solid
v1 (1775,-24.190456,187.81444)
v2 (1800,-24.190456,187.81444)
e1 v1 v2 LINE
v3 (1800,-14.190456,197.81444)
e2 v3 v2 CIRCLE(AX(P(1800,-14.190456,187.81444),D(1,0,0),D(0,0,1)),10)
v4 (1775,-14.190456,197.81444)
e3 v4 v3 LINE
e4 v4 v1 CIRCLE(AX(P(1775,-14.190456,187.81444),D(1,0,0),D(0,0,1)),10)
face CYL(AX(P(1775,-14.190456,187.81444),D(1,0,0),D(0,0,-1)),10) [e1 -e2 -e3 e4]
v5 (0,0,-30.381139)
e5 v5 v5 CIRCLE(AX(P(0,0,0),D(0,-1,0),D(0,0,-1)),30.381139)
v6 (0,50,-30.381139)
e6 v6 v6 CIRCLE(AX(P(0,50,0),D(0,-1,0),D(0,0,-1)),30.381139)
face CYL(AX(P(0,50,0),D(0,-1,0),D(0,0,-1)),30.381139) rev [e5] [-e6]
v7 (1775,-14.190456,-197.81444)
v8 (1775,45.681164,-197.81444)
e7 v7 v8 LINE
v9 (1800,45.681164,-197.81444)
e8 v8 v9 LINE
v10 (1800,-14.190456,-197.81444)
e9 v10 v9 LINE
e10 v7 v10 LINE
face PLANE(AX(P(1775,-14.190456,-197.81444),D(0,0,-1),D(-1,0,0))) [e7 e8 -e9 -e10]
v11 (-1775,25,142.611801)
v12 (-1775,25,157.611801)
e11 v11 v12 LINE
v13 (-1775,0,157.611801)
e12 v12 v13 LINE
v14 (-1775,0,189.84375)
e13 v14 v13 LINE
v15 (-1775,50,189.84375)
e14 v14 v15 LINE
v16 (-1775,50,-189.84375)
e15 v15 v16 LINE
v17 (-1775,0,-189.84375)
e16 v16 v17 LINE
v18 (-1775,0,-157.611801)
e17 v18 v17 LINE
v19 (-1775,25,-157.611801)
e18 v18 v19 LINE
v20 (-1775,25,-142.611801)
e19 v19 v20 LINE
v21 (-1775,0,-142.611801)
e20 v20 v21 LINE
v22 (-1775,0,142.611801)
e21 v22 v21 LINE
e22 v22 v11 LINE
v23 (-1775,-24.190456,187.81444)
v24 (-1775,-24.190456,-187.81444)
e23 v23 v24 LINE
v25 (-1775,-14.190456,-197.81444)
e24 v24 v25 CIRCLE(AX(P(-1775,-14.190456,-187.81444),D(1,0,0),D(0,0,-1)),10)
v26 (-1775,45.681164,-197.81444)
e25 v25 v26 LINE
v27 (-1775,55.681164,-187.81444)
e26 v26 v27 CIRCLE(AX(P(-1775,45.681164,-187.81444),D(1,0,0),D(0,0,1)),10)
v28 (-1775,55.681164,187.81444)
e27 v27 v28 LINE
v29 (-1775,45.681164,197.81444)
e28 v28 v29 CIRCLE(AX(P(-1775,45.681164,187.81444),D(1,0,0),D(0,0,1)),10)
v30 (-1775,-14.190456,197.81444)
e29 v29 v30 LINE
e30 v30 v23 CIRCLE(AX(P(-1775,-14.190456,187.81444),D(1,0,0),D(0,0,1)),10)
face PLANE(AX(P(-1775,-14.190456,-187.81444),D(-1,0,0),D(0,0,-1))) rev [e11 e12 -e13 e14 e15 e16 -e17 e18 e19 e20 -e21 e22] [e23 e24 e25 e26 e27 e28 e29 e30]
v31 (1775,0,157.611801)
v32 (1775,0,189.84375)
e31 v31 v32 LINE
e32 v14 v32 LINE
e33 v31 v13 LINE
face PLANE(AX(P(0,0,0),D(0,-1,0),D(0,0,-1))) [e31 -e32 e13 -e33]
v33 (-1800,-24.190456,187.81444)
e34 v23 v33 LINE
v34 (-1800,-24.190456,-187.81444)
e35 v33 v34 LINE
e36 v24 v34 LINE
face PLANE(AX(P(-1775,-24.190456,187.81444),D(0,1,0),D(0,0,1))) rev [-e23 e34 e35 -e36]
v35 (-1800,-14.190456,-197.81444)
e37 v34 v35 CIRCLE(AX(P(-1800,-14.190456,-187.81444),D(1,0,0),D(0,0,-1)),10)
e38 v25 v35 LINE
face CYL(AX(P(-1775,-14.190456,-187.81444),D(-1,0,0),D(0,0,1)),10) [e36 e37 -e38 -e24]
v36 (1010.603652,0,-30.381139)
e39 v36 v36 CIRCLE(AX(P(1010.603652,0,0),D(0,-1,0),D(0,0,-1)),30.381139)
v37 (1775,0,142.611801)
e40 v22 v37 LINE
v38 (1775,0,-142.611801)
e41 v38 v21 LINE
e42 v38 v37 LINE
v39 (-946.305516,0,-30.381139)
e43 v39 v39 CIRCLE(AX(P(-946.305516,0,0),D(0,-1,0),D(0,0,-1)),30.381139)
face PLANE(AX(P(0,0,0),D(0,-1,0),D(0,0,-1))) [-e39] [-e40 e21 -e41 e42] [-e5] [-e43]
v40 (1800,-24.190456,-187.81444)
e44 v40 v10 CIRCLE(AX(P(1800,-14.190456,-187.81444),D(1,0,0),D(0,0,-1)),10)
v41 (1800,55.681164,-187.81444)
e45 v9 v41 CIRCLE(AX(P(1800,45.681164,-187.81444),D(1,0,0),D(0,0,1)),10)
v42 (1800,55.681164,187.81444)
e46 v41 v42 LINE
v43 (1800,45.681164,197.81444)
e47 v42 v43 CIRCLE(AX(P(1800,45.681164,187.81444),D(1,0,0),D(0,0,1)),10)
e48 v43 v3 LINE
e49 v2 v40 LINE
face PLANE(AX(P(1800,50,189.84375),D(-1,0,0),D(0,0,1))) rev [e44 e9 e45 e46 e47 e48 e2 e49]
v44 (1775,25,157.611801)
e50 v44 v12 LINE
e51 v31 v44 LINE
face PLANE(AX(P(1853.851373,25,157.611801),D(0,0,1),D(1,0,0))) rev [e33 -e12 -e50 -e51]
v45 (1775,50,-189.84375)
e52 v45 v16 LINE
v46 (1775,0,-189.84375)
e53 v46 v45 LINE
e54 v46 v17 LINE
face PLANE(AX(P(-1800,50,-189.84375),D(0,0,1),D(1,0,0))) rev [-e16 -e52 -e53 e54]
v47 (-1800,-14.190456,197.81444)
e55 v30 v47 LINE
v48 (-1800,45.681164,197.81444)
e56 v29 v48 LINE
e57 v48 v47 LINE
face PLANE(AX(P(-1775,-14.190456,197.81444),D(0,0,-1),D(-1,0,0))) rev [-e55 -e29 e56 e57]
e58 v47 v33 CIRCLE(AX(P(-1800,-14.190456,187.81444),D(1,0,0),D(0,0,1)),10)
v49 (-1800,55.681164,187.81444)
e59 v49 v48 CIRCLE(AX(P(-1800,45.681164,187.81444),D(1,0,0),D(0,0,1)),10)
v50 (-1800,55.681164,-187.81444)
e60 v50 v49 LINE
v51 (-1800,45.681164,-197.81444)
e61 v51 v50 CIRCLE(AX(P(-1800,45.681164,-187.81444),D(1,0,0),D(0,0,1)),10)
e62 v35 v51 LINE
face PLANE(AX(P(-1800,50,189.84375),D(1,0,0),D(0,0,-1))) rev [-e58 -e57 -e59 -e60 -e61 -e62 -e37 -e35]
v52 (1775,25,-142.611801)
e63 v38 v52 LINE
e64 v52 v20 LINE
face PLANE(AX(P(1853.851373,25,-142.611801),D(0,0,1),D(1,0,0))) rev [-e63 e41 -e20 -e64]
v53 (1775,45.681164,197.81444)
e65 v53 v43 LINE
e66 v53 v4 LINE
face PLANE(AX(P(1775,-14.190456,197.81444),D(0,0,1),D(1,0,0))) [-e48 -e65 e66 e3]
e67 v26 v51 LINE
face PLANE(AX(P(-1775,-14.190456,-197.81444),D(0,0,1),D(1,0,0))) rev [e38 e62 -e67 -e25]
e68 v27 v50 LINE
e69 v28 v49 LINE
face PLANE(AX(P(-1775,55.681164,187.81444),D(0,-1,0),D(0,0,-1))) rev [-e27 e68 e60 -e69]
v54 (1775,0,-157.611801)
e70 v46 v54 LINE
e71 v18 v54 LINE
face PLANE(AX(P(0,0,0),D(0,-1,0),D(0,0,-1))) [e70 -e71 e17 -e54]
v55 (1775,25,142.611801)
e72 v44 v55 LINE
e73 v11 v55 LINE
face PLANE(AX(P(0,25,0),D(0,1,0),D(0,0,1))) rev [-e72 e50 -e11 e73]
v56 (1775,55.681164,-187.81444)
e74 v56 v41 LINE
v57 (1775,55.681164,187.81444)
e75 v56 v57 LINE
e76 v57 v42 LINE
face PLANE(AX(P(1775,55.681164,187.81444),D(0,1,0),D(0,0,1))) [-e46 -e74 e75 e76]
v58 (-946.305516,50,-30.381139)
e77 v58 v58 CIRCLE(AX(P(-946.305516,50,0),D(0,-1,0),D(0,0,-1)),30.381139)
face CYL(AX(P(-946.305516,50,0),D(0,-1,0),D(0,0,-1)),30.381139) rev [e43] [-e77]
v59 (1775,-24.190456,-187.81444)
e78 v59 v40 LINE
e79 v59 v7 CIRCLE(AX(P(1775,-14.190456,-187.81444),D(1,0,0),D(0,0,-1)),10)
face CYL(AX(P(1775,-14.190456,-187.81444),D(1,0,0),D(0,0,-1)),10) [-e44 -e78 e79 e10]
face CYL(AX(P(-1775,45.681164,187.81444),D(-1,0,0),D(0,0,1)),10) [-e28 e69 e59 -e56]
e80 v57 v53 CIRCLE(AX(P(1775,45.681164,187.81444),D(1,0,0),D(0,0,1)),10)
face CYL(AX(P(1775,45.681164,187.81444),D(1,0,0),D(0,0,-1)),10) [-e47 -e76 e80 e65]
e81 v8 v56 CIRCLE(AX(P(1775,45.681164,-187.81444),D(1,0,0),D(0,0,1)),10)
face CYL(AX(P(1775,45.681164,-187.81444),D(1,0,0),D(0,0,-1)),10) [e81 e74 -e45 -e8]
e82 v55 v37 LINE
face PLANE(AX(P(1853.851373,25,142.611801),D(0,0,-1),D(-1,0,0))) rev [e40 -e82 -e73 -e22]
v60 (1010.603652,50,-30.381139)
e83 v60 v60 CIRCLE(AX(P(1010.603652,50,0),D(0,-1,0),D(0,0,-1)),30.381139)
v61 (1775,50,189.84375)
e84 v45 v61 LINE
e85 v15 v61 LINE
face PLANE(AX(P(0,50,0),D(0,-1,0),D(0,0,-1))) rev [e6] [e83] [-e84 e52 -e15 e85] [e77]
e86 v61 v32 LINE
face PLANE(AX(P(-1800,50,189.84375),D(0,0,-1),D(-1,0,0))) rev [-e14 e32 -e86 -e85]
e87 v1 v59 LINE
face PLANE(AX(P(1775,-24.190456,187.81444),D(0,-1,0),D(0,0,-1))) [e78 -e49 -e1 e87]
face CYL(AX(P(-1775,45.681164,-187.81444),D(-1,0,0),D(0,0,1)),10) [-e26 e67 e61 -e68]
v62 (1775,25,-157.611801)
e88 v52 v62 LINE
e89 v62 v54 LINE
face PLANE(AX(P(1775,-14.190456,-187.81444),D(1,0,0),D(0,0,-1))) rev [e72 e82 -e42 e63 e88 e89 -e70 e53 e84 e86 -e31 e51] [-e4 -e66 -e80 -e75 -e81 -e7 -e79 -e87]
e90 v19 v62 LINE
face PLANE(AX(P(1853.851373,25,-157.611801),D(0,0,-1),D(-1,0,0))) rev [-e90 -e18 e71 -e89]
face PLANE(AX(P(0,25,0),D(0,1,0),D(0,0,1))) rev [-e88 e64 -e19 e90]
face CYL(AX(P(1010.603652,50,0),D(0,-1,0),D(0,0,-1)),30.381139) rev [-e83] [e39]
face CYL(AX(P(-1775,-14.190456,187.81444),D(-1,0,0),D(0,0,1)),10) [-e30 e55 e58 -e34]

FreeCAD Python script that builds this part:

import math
import FreeCAD as App
import Part
import Sketcher
from FreeCAD import Vector

doc = App.newDocument("Part")
body = doc.addObject("PartDesign::Body", "Body")

# Sketch on XZ plane
sketch1 = body.newObject("Sketcher::SketchObject", "Sketch")
sketch1.AttachmentSupport = (doc.getObject("XZ_Plane"), [""])
sketch1.MapMode = "FlatFace"
sketch1.addGeometry([
    Part.LineSegment(Vector(-1800, -190, 0), Vector(-1800, 190, 0)),
    Part.LineSegment(Vector(-1800, 190, 0), Vector(1800, 190, 0)),
    Part.LineSegment(Vector(1800, 190, 0), Vector(1800, -190, 0)),
    Part.LineSegment(Vector(1800, -190, 0), Vector(-1800, -190, 0)),
], False)
sketch1.addConstraint([
    Sketcher.Constraint("Coincident", 0, 2, 1, 1),
    Sketcher.Constraint("Coincident", 1, 2, 2, 1),
    Sketcher.Constraint("Coincident", 2, 2, 3, 1),
    Sketcher.Constraint("Coincident", 3, 2, 0, 1),
    Sketcher.Constraint("Vertical", 0),
    Sketcher.Constraint("Horizontal", 1),
    Sketcher.Constraint("Vertical", 2),
    Sketcher.Constraint("Horizontal", 3),
    Sketcher.Constraint("Symmetric", 0, 2, 2, 2, -1, 1),
    Sketcher.Constraint("DistanceX", 1, 1, 1, 2, 3600.0),
    Sketcher.Constraint("DistanceY", 0, 1, 0, 2, 379.6875),
])
pad1 = body.newObject("PartDesign::Pad", "Pad")
pad1.Profile = sketch1
pad1.Length = 50
pad1.Reversed = True

# Sketch on XZ plane
sketch2 = body.newObject("Sketcher::SketchObject", "Sketch001")
sketch2.AttachmentSupport = (doc.getObject("XZ_Plane"), [""])
sketch2.MapMode = "FlatFace"
sketch2.addGeometry([
    Part.LineSegment(Vector(-1800, 158, 0), Vector(-1800, 143, 0)),  # 0
    Part.LineSegment(Vector(-1800, 143, 0), Vector(1854, 143, 0)),  # 1
    Part.LineSegment(Vector(1854, 143, 0), Vector(1854, 158, 0)),  # 2
    Part.LineSegment(Vector(1854, 158, 0), Vector(-1800, 158, 0)),  # 3
    Part.LineSegment(Vector(-1800, -143, 0), Vector(-1800, -158, 0)),  # 4
    Part.LineSegment(Vector(-1800, -158, 0), Vector(1854, -158, 0)),  # 5
    Part.LineSegment(Vector(1854, -158, 0), Vector(1854, -143, 0)),  # 6
    Part.LineSegment(Vector(1854, -143, 0), Vector(-1800, -143, 0)),  # 7
], False)
sketch2.addConstraint([
    Sketcher.Constraint("Coincident", 0, 2, 1, 1),
    Sketcher.Constraint("Coincident", 1, 2, 2, 1),
    Sketcher.Constraint("Coincident", 2, 2, 3, 1),
    Sketcher.Constraint("Coincident", 3, 2, 0, 1),
    Sketcher.Constraint("Coincident", 4, 2, 5, 1),
    Sketcher.Constraint("Coincident", 5, 2, 6, 1),
    Sketcher.Constraint("Coincident", 6, 2, 7, 1),
    Sketcher.Constraint("Coincident", 7, 2, 4, 1),
    Sketcher.Constraint("Vertical", 0),
    Sketcher.Constraint("Horizontal", 1),
    Sketcher.Constraint("Vertical", 2),
    Sketcher.Constraint("Horizontal", 3),
    Sketcher.Constraint("Vertical", 4),
    Sketcher.Constraint("Horizontal", 5),
    Sketcher.Constraint("Vertical", 6),
    Sketcher.Constraint("Horizontal", 7),
    Sketcher.Constraint("Symmetric", 3, 2, 4, 2, -1),
    Sketcher.Constraint("Symmetric", 1, 2, 6, 2, -1),
    Sketcher.Constraint("DistanceY", 0, 2, 0, 1, 15.0),
    Sketcher.Constraint("DistanceX", 0, 2, -1, 1, 1800.0),
    Sketcher.Constraint("DistanceY", -1, 1, 0, 2, 142.611801),
    Sketcher.Constraint("DistanceX", 1, 1, 1, 2, 3653.851373),
])
pocket1 = body.newObject("PartDesign::Pocket", "Pocket")
pocket1.Profile = sketch2
pocket1.Length = 25

# Sketch on XZ plane
sketch3 = body.newObject("Sketcher::SketchObject", "Sketch002")
sketch3.AttachmentSupport = (doc.getObject("XZ_Plane"), [""])
sketch3.MapMode = "FlatFace"
sketch3.addGeometry([
    Part.Circle(Vector(0, 0, 0), Vector(0, 0, 1), 30),
    Part.Circle(Vector(-946, 0, 0), Vector(0, 0, 1), 30),
    Part.Circle(Vector(1011, 0, 0), Vector(0, 0, 1), 30),
], False)
sketch3.addConstraint([
    Sketcher.Constraint("Coincident", 0, 3, -1, 1),
    Sketcher.Constraint("Equal", 0, 1),
    Sketcher.Constraint("Equal", 1, 2),
    Sketcher.Constraint("PointOnObject", 1, 3, -1),
    Sketcher.Constraint("PointOnObject", 2, 3, -1),
    Sketcher.Constraint("Diameter", 0, 60.762278),
    Sketcher.Constraint("DistanceX", -1, 1, 2, 3, 1010.603652),
    Sketcher.Constraint("DistanceX", 1, 3, -1, 1, 946.305516),
])
pocket2 = body.newObject("PartDesign::Pocket", "Pocket001")
pocket2.Profile = sketch3
pocket2.Type = "ThroughAll"

# Sketch on YZ plane
sketch4 = body.newObject("Sketcher::SketchObject", "Sketch003")
sketch4.AttachmentSupport = (doc.getObject("YZ_Plane"), [""])
sketch4.MapMode = "FlatFace"
sketch4.AttachmentOffset = App.Placement(Vector(0, 0, 1800), App.Rotation())
sketch4.addGeometry([
    Part.LineSegment(Vector(-24, 188, 0), Vector(-24, -188, 0)),  # 0
    Part.ArcOfCircle(Part.Circle(Vector(-14, -188, 0), Vector(0, 0, 1), 10), math.radians(180), math.radians(270)),  # 1
    Part.LineSegment(Vector(-14, -198, 0), Vector(46, -198, 0)),  # 2
    Part.ArcOfCircle(Part.Circle(Vector(46, -188, 0), Vector(0, 0, 1), 10), math.radians(-90), math.radians(0)),  # 3
    Part.LineSegment(Vector(56, -188, 0), Vector(56, 188, 0)),  # 4
    Part.ArcOfCircle(Part.Circle(Vector(46, 188, 0), Vector(0, 0, 1), 10), math.radians(0), math.radians(90)),  # 5
    Part.LineSegment(Vector(46, 198, 0), Vector(-14, 198, 0)),  # 6
    Part.ArcOfCircle(Part.Circle(Vector(-14, 188, 0), Vector(0, 0, 1), 10), math.radians(90), math.radians(180)),  # 7
], False)
sketch4.addConstraint([
    Sketcher.Constraint("Tangent", 0, 2, 1, 1),
    Sketcher.Constraint("Tangent", 1, 2, 2, 1),
    Sketcher.Constraint("Tangent", 2, 2, 3, 1),
    Sketcher.Constraint("Tangent", 3, 2, 4, 1),
    Sketcher.Constraint("Tangent", 4, 2, 5, 1),
    Sketcher.Constraint("Tangent", 5, 2, 6, 1),
    Sketcher.Constraint("Tangent", 6, 2, 7, 1),
    Sketcher.Constraint("Tangent", 7, 2, 0, 1),
    Sketcher.Constraint("Vertical", 0),
    Sketcher.Constraint("Horizontal", 2),
    Sketcher.Constraint("Vertical", 4),
    Sketcher.Constraint("Horizontal", 6),
    Sketcher.Constraint("Equal", 1, 3),
    Sketcher.Constraint("Equal", 3, 5),
    Sketcher.Constraint("Equal", 5, 7),
    Sketcher.Constraint("Radius", 1, 10.0),
    Sketcher.Constraint("DistanceX", 2, 1, 2, 2, 59.87162),
    Sketcher.Constraint("DistanceY", 0, 2, 0, 1, 375.62888),
    Sketcher.Constraint("DistanceY", 1, 3, -1, 1, 187.81444),
    Sketcher.Constraint("DistanceX", 1, 3, -1, 1, 14.190456),
])
pad2 = body.newObject("PartDesign::Pad", "Pad001")
pad2.Profile = sketch4
pad2.Length = 25
pad2.Reversed = True
doc.recompute()

mirrored = body.newObject("PartDesign::Mirrored", "Mirrored")
mirrored.Originals = [pad2]
mirrored.MirrorPlane = (doc.getObject("YZ_Plane"), [""])
body.Tip = mirrored

doc.recompute()
